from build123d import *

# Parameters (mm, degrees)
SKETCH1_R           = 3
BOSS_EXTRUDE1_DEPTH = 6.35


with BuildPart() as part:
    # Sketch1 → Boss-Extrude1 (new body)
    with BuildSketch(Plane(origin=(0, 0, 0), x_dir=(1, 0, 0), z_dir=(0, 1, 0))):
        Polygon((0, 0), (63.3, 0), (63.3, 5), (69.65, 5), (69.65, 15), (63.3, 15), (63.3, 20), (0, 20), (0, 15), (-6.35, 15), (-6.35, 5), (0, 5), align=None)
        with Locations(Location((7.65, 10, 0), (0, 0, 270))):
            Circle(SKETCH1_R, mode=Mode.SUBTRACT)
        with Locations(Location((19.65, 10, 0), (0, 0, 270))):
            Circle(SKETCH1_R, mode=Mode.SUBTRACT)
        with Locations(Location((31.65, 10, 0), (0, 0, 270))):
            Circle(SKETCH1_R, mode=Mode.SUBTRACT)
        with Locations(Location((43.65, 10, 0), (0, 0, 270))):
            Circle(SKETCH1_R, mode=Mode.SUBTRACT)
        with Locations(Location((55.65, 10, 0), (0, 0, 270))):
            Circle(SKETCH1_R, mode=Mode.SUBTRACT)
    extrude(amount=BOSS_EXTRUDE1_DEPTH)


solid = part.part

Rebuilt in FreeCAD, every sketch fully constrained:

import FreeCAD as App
import Part
import Sketcher

V = App.Vector


def add_polygon(sketch, points):
    """Adds a closed chain of lines whose ends are joined by coincident constraints."""
    first, n = sketch.GeometryCount, len(points)
    for a, b in zip(points, points[1:] + points[:1]):
        sketch.addGeometry(Part.LineSegment(App.Vector(*a, 0), App.Vector(*b, 0)), False)
    for i in range(n):
        sketch.addConstraint(Sketcher.Constraint("Coincident", first + i, 2, first + (i + 1) % n, 1))

doc = App.newDocument("Part")
body = doc.addObject("PartDesign::Body", "Body")

sketch1 = body.newObject("Sketcher::SketchObject", "Sketch")
sketch1.AttachmentSupport = (doc.getObject("XZ_Plane"), [""])
sketch1.MapMode = "FlatFace"
add_polygon(sketch1, [(0, 0), (63.3, 0), (63.3, -5), (69.7, -5), (69.7, -15), (63.3, -15), (63.3, -20), (0, -20), (0, -15), (-6.3, -15), (-6.3, -5), (0, -5)])
sketch1.addGeometry(Part.Circle(V(7.7, -10, 0), V(0, 0, 1), 3), False)
sketch1.addGeometry(Part.Circle(V(19.6, -10, 0), V(0, 0, 1), 3), False)
sketch1.addGeometry(Part.Circle(V(31.6, -10, 0), V(0, 0, 1), 3), False)
sketch1.addGeometry(Part.Circle(V(43.6, -10, 0), V(0, 0, 1), 3), False)
sketch1.addGeometry(Part.Circle(V(55.6, -10, 0), V(0, 0, 1), 3), False)
sketch1.addConstraint(Sketcher.Constraint("Horizontal", 0))
sketch1.addConstraint(Sketcher.Constraint("Vertical", 1))
sketch1.addConstraint(Sketcher.Constraint("Horizontal", 2))
sketch1.addConstraint(Sketcher.Constraint("Vertical", 3))
sketch1.addConstraint(Sketcher.Constraint("Horizontal", 4))
sketch1.addConstraint(Sketcher.Constraint("Vertical", 5))
sketch1.addConstraint(Sketcher.Constraint("Horizontal", 6))
sketch1.addConstraint(Sketcher.Constraint("Vertical", 7))
sketch1.addConstraint(Sketcher.Constraint("Horizontal", 8))
sketch1.addConstraint(Sketcher.Constraint("Vertical", 9))
sketch1.addConstraint(Sketcher.Constraint("Horizontal", 10))
sketch1.addConstraint(Sketcher.Constraint("Vertical", 11))
sketch1.addConstraint(Sketcher.Constraint("Coincident", 11, 2, -1, 1))
sketch1.addConstraint(Sketcher.Constraint("Equal", 12, 13))
sketch1.addConstraint(Sketcher.Constraint("Equal", 13, 14))
sketch1.addConstraint(Sketcher.Constraint("Equal", 14, 15))
sketch1.addConstraint(Sketcher.Constraint("Equal", 15, 16))
sketch1.addConstraint(Sketcher.Constraint("PointOnObject", 6, 2, -2))
sketch1.addConstraint(Sketcher.Constraint("Horizontal", 12, 3, 13, 3))
sketch1.addConstraint(Sketcher.Constraint("Horizontal", 13, 3, 14, 3))
sketch1.addConstraint(Sketcher.Constraint("Horizontal", 14, 3, 15, 3))
sketch1.addConstraint(Sketcher.Constraint("Horizontal", 15, 3, 16, 3))
sketch1.addConstraint(Sketcher.Constraint("Horizontal", 4, 2, 7, 2))
sketch1.addConstraint(Sketcher.Constraint("Horizontal", 2, 2, 9, 2))
sketch1.addConstraint(Sketcher.Constraint("Vertical", 1, 2, 4, 2))
sketch1.addConstraint(Sketcher.Constraint("Equal", 4, 8))
sketch1.addConstraint(Sketcher.Constraint("Equal", 1, 5))
sketch1.addConstraint(Sketcher.Constraint("Diameter", 12, 6.0))
sketch1.addConstraint(Sketcher.Constraint("DistanceY", 1, 2, 1, 1, 5.0))
sketch1.addConstraint(Sketcher.Constraint("DistanceY", 3, 2, 3, 1, 10.0))
sketch1.addConstraint(Sketcher.Constraint("DistanceX", 0, 1, 0, 2, 63.3))
sketch1.addConstraint(Sketcher.Constraint("DistanceY", 12, 3, -1, 1, 10.0))
sketch1.addConstraint(Sketcher.Constraint("DistanceX", 12, 3, 13, 3, 12.0))
sketch1.addConstraint(Sketcher.Constraint("DistanceX", 13, 3, 14, 3, 12.0))
sketch1.addConstraint(Sketcher.Constraint("DistanceX", 14, 3, 15, 3, 12.0))
sketch1.addConstraint(Sketcher.Constraint("DistanceX", 15, 3, 16, 3, 12.0))
sketch1.addConstraint(Sketcher.Constraint("DistanceX", 16, 3, 2, 2, 14.0))
sketch1.addConstraint(Sketcher.Constraint("DistanceX", 8, 2, 12, 3, 14.0))
pad1 = body.newObject("PartDesign::Pad", "Pad")
pad1.Profile = sketch1
pad1.Length = 6.35
pad1.Reversed = True

doc.recompute()
